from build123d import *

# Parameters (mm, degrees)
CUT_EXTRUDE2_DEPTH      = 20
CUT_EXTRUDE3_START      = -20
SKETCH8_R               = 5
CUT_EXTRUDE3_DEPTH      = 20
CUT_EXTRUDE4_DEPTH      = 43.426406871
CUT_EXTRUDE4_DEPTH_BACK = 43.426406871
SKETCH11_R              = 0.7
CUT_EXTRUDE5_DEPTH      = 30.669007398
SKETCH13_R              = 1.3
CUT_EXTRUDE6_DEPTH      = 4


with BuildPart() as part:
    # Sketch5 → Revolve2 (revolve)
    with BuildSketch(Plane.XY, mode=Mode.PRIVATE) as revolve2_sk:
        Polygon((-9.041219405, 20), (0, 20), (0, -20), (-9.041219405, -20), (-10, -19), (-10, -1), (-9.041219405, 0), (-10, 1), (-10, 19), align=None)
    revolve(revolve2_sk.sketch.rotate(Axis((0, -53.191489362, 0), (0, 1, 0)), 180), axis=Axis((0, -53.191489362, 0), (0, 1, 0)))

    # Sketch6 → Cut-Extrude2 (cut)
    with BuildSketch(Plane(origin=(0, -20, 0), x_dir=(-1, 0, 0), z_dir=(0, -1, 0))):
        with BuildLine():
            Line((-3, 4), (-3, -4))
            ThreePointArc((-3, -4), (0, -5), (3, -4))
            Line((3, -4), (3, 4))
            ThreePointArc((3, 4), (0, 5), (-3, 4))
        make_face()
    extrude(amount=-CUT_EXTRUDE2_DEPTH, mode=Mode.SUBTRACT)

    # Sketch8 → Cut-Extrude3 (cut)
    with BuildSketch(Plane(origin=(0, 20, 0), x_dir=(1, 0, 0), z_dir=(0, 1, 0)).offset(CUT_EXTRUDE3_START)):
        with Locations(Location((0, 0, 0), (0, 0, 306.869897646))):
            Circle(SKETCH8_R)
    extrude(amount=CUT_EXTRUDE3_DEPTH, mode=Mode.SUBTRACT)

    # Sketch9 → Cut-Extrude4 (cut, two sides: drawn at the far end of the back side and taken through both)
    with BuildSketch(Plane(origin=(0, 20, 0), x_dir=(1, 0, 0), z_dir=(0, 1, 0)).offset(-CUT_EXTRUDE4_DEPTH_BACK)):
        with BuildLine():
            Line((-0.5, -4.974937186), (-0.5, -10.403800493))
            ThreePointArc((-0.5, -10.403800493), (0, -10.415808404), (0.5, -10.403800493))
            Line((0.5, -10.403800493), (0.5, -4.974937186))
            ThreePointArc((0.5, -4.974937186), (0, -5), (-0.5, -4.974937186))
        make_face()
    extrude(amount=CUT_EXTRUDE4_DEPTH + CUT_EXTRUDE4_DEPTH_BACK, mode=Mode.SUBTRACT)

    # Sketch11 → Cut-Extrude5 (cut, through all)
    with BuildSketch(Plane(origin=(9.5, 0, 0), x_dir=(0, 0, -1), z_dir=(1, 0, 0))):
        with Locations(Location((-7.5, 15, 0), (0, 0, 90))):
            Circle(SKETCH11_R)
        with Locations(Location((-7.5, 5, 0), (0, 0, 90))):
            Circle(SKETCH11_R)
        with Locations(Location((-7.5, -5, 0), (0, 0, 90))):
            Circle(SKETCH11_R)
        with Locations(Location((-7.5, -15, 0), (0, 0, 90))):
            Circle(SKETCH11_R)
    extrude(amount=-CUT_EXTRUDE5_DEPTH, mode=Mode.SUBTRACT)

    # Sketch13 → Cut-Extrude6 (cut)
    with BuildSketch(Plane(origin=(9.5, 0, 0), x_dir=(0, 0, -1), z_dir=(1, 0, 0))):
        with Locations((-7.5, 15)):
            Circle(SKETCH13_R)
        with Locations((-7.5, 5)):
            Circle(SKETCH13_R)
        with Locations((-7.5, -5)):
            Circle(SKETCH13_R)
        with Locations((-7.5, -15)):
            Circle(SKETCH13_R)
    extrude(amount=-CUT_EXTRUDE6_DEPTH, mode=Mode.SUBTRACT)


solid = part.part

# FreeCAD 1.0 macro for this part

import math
import FreeCAD as App
import Part
import Sketcher
from FreeCAD import Vector


def add_polygon(sketch, points):
    """Adds a closed chain of lines whose ends are joined by coincident constraints."""
    first, n = sketch.GeometryCount, len(points)
    for a, b in zip(points, points[1:] + points[:1]):
        sketch.addGeometry(Part.LineSegment(App.Vector(*a, 0), App.Vector(*b, 0)), False)
    for i in range(n):
        sketch.addConstraint(Sketcher.Constraint("Coincident", first + i, 2, first + (i + 1) % n, 1))

doc = App.newDocument("Part")
params = doc.addObject("Spreadsheet::Sheet", "Params")
for row, (alias, value) in enumerate([
    ("sketch1_height", "18 mm"),
    ("sketch1_height2", "40 mm"),
    ("revolution_angle", "360 deg"),
    ("sketch2_radius", "5 mm"),
    ("sketch2_height", "8 mm"),
    ("pocket1_length", "20 mm"),
    ("sketch3_diameter", "10 mm"),
    ("pocket2_length", "20 mm"),
    ("sketch4_radius", "5 mm"),
    ("sketch5_diameter", "1.4 mm"),
    ("sketch6_diameter", "2.6 mm"),
    ("pocket5_length", "4 mm"),
], start=1):
    params.set(f"A{row}", alias)
    params.set(f"B{row}", "=" + value)
    params.setAlias(f"B{row}", alias)

body = doc.addObject("PartDesign::Body", "Body")

sketch1 = body.newObject("Sketcher::SketchObject", "Sketch")
sketch1.AttachmentSupport = (doc.getObject("XY_Plane"), [""])
sketch1.MapMode = "FlatFace"
add_polygon(sketch1, [(0, 20), (-9, 20), (-10, 19), (-10, 1), (-9, 0), (-10, -1), (-10, -19), (-9, -20), (0, -20)])
sketch1.addConstraint(Sketcher.Constraint("Horizontal", 0))
sketch1.addConstraint(Sketcher.Constraint("Vertical", 2))
sketch1.addConstraint(Sketcher.Constraint("Vertical", 5))
sketch1.addConstraint(Sketcher.Constraint("Horizontal", 7))
sketch1.addConstraint(Sketcher.Constraint("Vertical", 8))
sketch1.addConstraint(Sketcher.Constraint("Symmetric", 7, 2, 8, 2, -1, 1))
sketch1.addConstraint(Sketcher.Constraint("Symmetric", 2, 2, 4, 2, -1))
sketch1.addConstraint(Sketcher.Constraint("PointOnObject", 3, 2, -1))
sketch1.addConstraint(Sketcher.Constraint("Parallel", 1, 4))
sketch1.addConstraint(Sketcher.Constraint("Parallel", 3, 6))
sketch1.addConstraint(Sketcher.Constraint("Vertical", 0, 2, 3, 2))
sketch1.addConstraint(Sketcher.Constraint("Vertical", 3, 2, 6, 2))
sketch1.addConstraint(Sketcher.Constraint("DistanceY", 2, 2, 2, 1, 18.0))
sketch1.addConstraint(Sketcher.Constraint("DistanceY", 8, 1, 8, 2, 40.0))
sketch1.addConstraint(Sketcher.Constraint("DistanceX", 1, 2, -1, 1, 10.0))
sketch1.addConstraint(Sketcher.Constraint("DistanceX", 0, 2, 0, 1, 9.041219))
sketch1.setExpression("Constraints[21]", "Params.sketch1_height")
sketch1.setExpression("Constraints[22]", "Params.sketch1_height2")
revolution = body.newObject("PartDesign::Revolution", "Revolution")
revolution.Profile = sketch1
revolution.ReferenceAxis = (sketch1, ["V_Axis"])
revolution.setExpression("Angle", "Params.revolution_angle")

sketch2 = body.newObject("Sketcher::SketchObject", "Sketch001")
sketch2.AttachmentSupport = (doc.getObject("XZ_Plane"), [""])
sketch2.MapMode = "FlatFace"
sketch2.AttachmentOffset = App.Placement(Vector(0, 0, 20), App.Rotation())
sketch2.addGeometry(Part.LineSegment(Vector(3, -4, 0), Vector(3, 4, 0)), False)
sketch2.addGeometry(Part.ArcOfCircle(Part.Circle(Vector(0, 0, 0), Vector(0, 0, 1), 5), math.radians(53), math.radians(127)), False)
sketch2.addGeometry(Part.LineSegment(Vector(-3, 4, 0), Vector(-3, -4, 0)), False)
sketch2.addGeometry(Part.ArcOfCircle(Part.Circle(Vector(0, 0, 0), Vector(0, 0, 1), 5), math.radians(-127), math.radians(-53)), False)
sketch2.addConstraint(Sketcher.Constraint("Coincident", 0, 2, 1, 1))
sketch2.addConstraint(Sketcher.Constraint("Coincident", 1, 2, 2, 1))
sketch2.addConstraint(Sketcher.Constraint("Coincident", 2, 2, 3, 1))
sketch2.addConstraint(Sketcher.Constraint("Coincident", 3, 2, 0, 1))
sketch2.addConstraint(Sketcher.Constraint("Vertical", 0))
sketch2.addConstraint(Sketcher.Constraint("Vertical", 2))
sketch2.addConstraint(Sketcher.Constraint("Coincident", 1, 3, -1, 1))
sketch2.addConstraint(Sketcher.Constraint("Coincident", 3, 3, -1, 1))
sketch2.addConstraint(Sketcher.Constraint("Equal", 1, 3))
sketch2.addConstraint(Sketcher.Constraint("Horizontal", 0, 2, 1, 2))
sketch2.addConstraint(Sketcher.Constraint("Radius", 1, 5.0))
sketch2.addConstraint(Sketcher.Constraint("DistanceY", 0, 1, 0, 2, 8.0))
sketch2.setExpression("Constraints[10]", "Params.sketch2_radius")
sketch2.setExpression("Constraints[11]", "Params.sketch2_height")
pocket1 = body.newObject("PartDesign::Pocket", "Pocket")
pocket1.Profile = sketch2
pocket1.setExpression("Length", "Params.pocket1_length")

sketch3 = body.newObject("Sketcher::SketchObject", "Sketch002")
sketch3.AttachmentSupport = (doc.getObject("XZ_Plane"), [""])
sketch3.MapMode = "FlatFace"
sketch3.addGeometry(Part.Circle(Vector(0, 0, 0), Vector(0, 0, 1), 5), False)
sketch3.addConstraint(Sketcher.Constraint("Coincident", 0, 3, -1, 1))
sketch3.addConstraint(Sketcher.Constraint("Diameter", 0, 10.0))
sketch3.setExpression("Constraints[1]", "Params.sketch3_diameter")
pocket2 = body.newObject("PartDesign::Pocket", "Pocket001")
pocket2.Profile = sketch3
pocket2.setExpression("Length", "Params.pocket2_length")

sketch4 = body.newObject("Sketcher::SketchObject", "Sketch003")
sketch4.AttachmentSupport = (doc.getObject("XZ_Plane"), [""])
sketch4.MapMode = "FlatFace"
sketch4.AttachmentOffset = App.Placement(Vector(0, 0, -20), App.Rotation())
sketch4.addGeometry(Part.LineSegment(Vector(-0.5, 5, 0), Vector(-0.5, 10.4, 0)), False)
sketch4.addGeometry(Part.ArcOfCircle(Part.Circle(Vector(0, 0, 0), Vector(0, 0, 1), 10.4), math.radians(87.25), math.radians(92.75)), False)
sketch4.addGeometry(Part.LineSegment(Vector(0.5, 10.4, 0), Vector(0.5, 5, 0)), False)
sketch4.addGeometry(Part.ArcOfCircle(Part.Circle(Vector(0, 0, 0), Vector(0, 0, 1), 5), math.radians(84.26), math.radians(95.74)), False)
sketch4.addConstraint(Sketcher.Constraint("Coincident", 0, 2, 1, 2))
sketch4.addConstraint(Sketcher.Constraint("Coincident", 1, 1, 2, 1))
sketch4.addConstraint(Sketcher.Constraint("Coincident", 2, 2, 3, 1))
sketch4.addConstraint(Sketcher.Constraint("Coincident", 3, 2, 0, 1))
sketch4.addConstraint(Sketcher.Constraint("Vertical", 0))
sketch4.addConstraint(Sketcher.Constraint("Vertical", 2))
sketch4.addConstraint(Sketcher.Constraint("Coincident", 1, 3, -1, 1))
sketch4.addConstraint(Sketcher.Constraint("Coincident", 3, 3, -1, 1))
sketch4.addConstraint(Sketcher.Constraint("Horizontal", 0, 2, 1, 1))
sketch4.addConstraint(Sketcher.Constraint("Radius", 3, 5.0))
sketch4.addConstraint(Sketcher.Constraint("DistanceX", 0, 2, 1, 1, 1.0))
sketch4.addConstraint(Sketcher.Constraint("Radius", 1, 10.415808))
sketch4.setExpression("Constraints[9]", "Params.sketch4_radius")
pocket3 = body.newObject("PartDesign::Pocket", "Pocket002")
pocket3.Profile = sketch4
pocket3.Type = "ThroughAll"
pocket3.Midplane = True

sketch5 = body.newObject("Sketcher::SketchObject", "Sketch004")
sketch5.AttachmentSupport = (doc.getObject("YZ_Plane"), [""])
sketch5.MapMode = "FlatFace"
sketch5.AttachmentOffset = App.Placement(Vector(0, 0, 9.5), App.Rotation())
sketch5.addGeometry(Part.Circle(Vector(15, 7.5, 0), Vector(0, 0, 1), 0.7), False)
sketch5.addGeometry(Part.Circle(Vector(5, 7.5, 0), Vector(0, 0, 1), 0.7), False)
sketch5.addGeometry(Part.Circle(Vector(-5, 7.5, 0), Vector(0, 0, 1), 0.7), False)
sketch5.addGeometry(Part.Circle(Vector(-15, 7.5, 0), Vector(0, 0, 1), 0.7), False)
sketch5.addConstraint(Sketcher.Constraint("Equal", 0, 1))
sketch5.addConstraint(Sketcher.Constraint("Equal", 1, 2))
sketch5.addConstraint(Sketcher.Constraint("Equal", 2, 3))
sketch5.addConstraint(Sketcher.Constraint("Symmetric", 1, 3, 2, 3, -2))
sketch5.addConstraint(Sketcher.Constraint("Symmetric", 0, 3, 3, 3, -2))
sketch5.addConstraint(Sketcher.Constraint("Horizontal", 0, 3, 1, 3))
sketch5.addConstraint(Sketcher.Constraint("Diameter", 0, 1.4))
sketch5.addConstraint(Sketcher.Constraint("DistanceX", -1, 1, 0, 3, 15.0))
sketch5.addConstraint(Sketcher.Constraint("DistanceX", -1, 1, 1, 3, 5.0))
sketch5.addConstraint(Sketcher.Constraint("DistanceY", -1, 1, 0, 3, 7.5))
sketch5.setExpression("Constraints[6]", "Params.sketch5_diameter")
pocket4 = body.newObject("PartDesign::Pocket", "Pocket003")
pocket4.Profile = sketch5
pocket4.Type = "ThroughAll"

sketch6 = body.newObject("Sketcher::SketchObject", "Sketch005")
sketch6.AttachmentSupport = (doc.getObject("YZ_Plane"), [""])
sketch6.MapMode = "FlatFace"
sketch6.AttachmentOffset = App.Placement(Vector(0, 0, 9.5), App.Rotation())
sketch6.addGeometry(Part.Circle(Vector(15, 7.5, 0), Vector(0, 0, 1), 1.3), False)
sketch6.addGeometry(Part.Circle(Vector(5, 7.5, 0), Vector(0, 0, 1), 1.3), False)
sketch6.addGeometry(Part.Circle(Vector(-5, 7.5, 0), Vector(0, 0, 1), 1.3), False)
sketch6.addGeometry(Part.Circle(Vector(-15, 7.5, 0), Vector(0, 0, 1), 1.3), False)
sketch6.addConstraint(Sketcher.Constraint("Equal", 0, 1))
sketch6.addConstraint(Sketcher.Constraint("Equal", 1, 2))
sketch6.addConstraint(Sketcher.Constraint("Equal", 2, 3))
sketch6.addConstraint(Sketcher.Constraint("Symmetric", 1, 3, 2, 3, -2))
sketch6.addConstraint(Sketcher.Constraint("Symmetric", 0, 3, 3, 3, -2))
sketch6.addConstraint(Sketcher.Constraint("Horizontal", 0, 3, 1, 3))
sketch6.addConstraint(Sketcher.Constraint("Diameter", 0, 2.6))
sketch6.addConstraint(Sketcher.Constraint("DistanceX", -1, 1, 0, 3, 15.0))
sketch6.addConstraint(Sketcher.Constraint("DistanceX", -1, 1, 1, 3, 5.0))
sketch6.addConstraint(Sketcher.Constraint("DistanceY", -1, 1, 0, 3, 7.5))
sketch6.setExpression("Constraints[6]", "Params.sketch6_diameter")
pocket5 = body.newObject("PartDesign::Pocket", "Pocket004")
pocket5.Profile = sketch6
pocket5.setExpression("Length", "Params.pocket5_length")

doc.recompute()
